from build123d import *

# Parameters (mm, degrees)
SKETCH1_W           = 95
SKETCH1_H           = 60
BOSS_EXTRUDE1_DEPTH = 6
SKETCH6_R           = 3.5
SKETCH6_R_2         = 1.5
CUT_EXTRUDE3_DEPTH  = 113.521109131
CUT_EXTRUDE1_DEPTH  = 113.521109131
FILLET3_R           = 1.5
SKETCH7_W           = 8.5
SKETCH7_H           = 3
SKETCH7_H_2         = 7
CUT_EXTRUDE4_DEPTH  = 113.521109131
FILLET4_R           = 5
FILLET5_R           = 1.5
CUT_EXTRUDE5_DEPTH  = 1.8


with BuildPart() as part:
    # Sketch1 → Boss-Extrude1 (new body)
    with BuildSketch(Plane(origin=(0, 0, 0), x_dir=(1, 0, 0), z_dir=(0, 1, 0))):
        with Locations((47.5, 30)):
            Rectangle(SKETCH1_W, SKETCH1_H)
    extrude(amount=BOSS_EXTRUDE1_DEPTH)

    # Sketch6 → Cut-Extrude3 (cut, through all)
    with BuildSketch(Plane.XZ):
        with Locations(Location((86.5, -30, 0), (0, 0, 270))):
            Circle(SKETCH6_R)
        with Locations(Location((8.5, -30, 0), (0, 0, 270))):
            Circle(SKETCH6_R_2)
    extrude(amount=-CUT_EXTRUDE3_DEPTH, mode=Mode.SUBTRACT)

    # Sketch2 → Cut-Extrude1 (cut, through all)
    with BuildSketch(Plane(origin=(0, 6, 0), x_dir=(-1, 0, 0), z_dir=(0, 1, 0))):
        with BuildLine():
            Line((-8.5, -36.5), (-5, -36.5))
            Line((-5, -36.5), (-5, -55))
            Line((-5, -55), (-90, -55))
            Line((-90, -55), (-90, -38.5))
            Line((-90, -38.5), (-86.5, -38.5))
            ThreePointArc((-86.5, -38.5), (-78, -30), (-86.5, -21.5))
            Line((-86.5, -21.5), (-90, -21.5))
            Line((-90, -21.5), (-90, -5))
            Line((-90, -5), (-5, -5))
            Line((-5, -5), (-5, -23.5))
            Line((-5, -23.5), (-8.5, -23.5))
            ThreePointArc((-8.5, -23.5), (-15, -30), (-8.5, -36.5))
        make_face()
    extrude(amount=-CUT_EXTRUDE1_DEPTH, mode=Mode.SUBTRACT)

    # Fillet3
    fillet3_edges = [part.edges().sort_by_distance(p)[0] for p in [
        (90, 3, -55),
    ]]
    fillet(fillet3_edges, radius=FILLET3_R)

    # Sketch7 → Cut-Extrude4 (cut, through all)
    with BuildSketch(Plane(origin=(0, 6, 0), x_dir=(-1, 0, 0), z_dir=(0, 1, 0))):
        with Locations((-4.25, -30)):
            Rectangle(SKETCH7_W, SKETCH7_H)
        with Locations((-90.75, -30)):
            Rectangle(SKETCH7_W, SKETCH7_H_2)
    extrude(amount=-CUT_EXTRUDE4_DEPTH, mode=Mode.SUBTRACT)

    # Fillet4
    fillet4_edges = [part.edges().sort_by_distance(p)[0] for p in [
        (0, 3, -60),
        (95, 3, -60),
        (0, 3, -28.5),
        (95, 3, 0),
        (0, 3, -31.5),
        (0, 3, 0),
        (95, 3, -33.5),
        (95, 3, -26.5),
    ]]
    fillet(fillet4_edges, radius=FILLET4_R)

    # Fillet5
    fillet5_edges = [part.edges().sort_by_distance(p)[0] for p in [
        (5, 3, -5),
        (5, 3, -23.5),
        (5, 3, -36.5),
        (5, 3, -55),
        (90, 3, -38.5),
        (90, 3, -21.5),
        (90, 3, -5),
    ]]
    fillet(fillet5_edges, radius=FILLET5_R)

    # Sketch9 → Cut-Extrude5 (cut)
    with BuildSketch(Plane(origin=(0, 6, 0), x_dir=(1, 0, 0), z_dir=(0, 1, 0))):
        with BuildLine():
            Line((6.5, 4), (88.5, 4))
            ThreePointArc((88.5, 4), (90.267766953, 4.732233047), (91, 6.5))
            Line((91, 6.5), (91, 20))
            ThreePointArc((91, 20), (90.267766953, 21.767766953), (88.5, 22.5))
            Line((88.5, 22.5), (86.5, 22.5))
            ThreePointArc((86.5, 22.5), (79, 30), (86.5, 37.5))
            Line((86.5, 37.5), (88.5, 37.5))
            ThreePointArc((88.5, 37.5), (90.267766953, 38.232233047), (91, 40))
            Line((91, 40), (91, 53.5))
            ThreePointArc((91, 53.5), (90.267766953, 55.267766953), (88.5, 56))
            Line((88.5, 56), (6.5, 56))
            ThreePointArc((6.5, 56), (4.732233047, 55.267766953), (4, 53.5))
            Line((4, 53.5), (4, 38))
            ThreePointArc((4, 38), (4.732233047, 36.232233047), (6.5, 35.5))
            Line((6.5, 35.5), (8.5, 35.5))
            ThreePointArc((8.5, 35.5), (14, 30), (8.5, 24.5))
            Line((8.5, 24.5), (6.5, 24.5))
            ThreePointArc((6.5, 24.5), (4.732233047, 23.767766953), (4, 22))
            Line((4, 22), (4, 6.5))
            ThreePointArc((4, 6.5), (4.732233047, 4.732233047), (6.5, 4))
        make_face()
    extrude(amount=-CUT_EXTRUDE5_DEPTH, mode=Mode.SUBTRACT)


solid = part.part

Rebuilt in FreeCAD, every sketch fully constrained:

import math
import FreeCAD as App
import Part
import Sketcher


def edges_at(feature, points):
    """Names of the edges that pass closest to the given points."""
    edges = feature.Shape.Edges
    near = lambda p: min(range(len(edges)), key=lambda i: edges[i].distToShape(Part.Vertex(*p))[0])
    return sorted({f"Edge{near(p) + 1}" for p in points})

doc = App.newDocument("Part")
body = doc.addObject("PartDesign::Body", "Body")

# Sketch on XZ plane
sketch1 = doc.addObject("Sketcher::SketchObject", "Sketch")
body.addObject(sketch1)
sketch1.AttachmentSupport = (doc.XZ_Plane, [""])
sketch1.MapMode = "FlatFace"
sketch1.addGeometry(Part.LineSegment(App.Vector(0, -60, 0), App.Vector(0, 0, 0)), False)
sketch1.addGeometry(Part.LineSegment(App.Vector(0, 0, 0), App.Vector(95, 0, 0)), False)
sketch1.addGeometry(Part.LineSegment(App.Vector(95, 0, 0), App.Vector(95, -60, 0)), False)
sketch1.addGeometry(Part.LineSegment(App.Vector(95, -60, 0), App.Vector(0, -60, 0)), False)
sketch1.addConstraint(Sketcher.Constraint("Coincident", 0, 2, 1, 1))
sketch1.addConstraint(Sketcher.Constraint("Coincident", 1, 2, 2, 1))
sketch1.addConstraint(Sketcher.Constraint("Coincident", 2, 2, 3, 1))
sketch1.addConstraint(Sketcher.Constraint("Coincident", 3, 2, 0, 1))
sketch1.addConstraint(Sketcher.Constraint("Vertical", 0))
sketch1.addConstraint(Sketcher.Constraint("Horizontal", 1))
sketch1.addConstraint(Sketcher.Constraint("Vertical", 2))
sketch1.addConstraint(Sketcher.Constraint("Horizontal", 3))
sketch1.addConstraint(Sketcher.Constraint("Coincident", 0, 2, -1, 1))
sketch1.addConstraint(Sketcher.Constraint("DistanceX", 1, 1, 1, 2, 95.0))
sketch1.addConstraint(Sketcher.Constraint("DistanceY", 0, 1, 0, 2, 60.0))
pad1 = doc.addObject("PartDesign::Pad", "Pad")
body.addObject(pad1)
pad1.Profile = sketch1
pad1.Length = 6
pad1.Reversed = True

# Sketch on XZ plane
sketch2 = doc.addObject("Sketcher::SketchObject", "Sketch001")
body.addObject(sketch2)
sketch2.AttachmentSupport = (doc.XZ_Plane, [""])
sketch2.MapMode = "FlatFace"
sketch2.addGeometry(Part.Circle(App.Vector(86.5, -30, 0), App.Vector(0, 0, 1), 3.5), False)
sketch2.addGeometry(Part.Circle(App.Vector(8.5, -30, 0), App.Vector(0, 0, 1), 1.5), False)
sketch2.addConstraint(Sketcher.Constraint("Horizontal", 0, 3, 1, 3))
sketch2.addConstraint(Sketcher.Constraint("Diameter", 0, 7.0))
sketch2.addConstraint(Sketcher.Constraint("Diameter", 1, 3.0))
sketch2.addConstraint(Sketcher.Constraint("DistanceY", 0, 3, -1, 1, 30.0))
sketch2.addConstraint(Sketcher.Constraint("DistanceX", 1, 3, 0, 3, 78.0))
sketch2.addConstraint(Sketcher.Constraint("DistanceX", -1, 1, 0, 3, 86.5))
pocket1 = doc.addObject("PartDesign::Pocket", "Pocket")
body.addObject(pocket1)
pocket1.Profile = sketch2
pocket1.Type = "ThroughAll"

# Sketch on XZ plane
sketch3 = doc.addObject("Sketcher::SketchObject", "Sketch002")
body.addObject(sketch3)
sketch3.AttachmentSupport = (doc.XZ_Plane, [""])
sketch3.MapMode = "FlatFace"
sketch3.AttachmentOffset = App.Placement(App.Vector(0, 0, -6), App.Rotation())
sketch3.addGeometry(Part.LineSegment(App.Vector(5, -36.5, 0), App.Vector(8.5, -36.5, 0)), False)
sketch3.addGeometry(Part.ArcOfCircle(Part.Circle(App.Vector(8.5, -30, 0), App.Vector(0, 0, 1), 6.5), math.radians(-90), math.radians(90)), False)
sketch3.addGeometry(Part.LineSegment(App.Vector(8.5, -23.5, 0), App.Vector(5, -23.5, 0)), False)
sketch3.addGeometry(Part.LineSegment(App.Vector(5, -23.5, 0), App.Vector(5, -5, 0)), False)
sketch3.addGeometry(Part.LineSegment(App.Vector(5, -5, 0), App.Vector(90, -5, 0)), False)
sketch3.addGeometry(Part.LineSegment(App.Vector(90, -5, 0), App.Vector(90, -21.5, 0)), False)
sketch3.addGeometry(Part.LineSegment(App.Vector(90, -21.5, 0), App.Vector(86.5, -21.5, 0)), False)
sketch3.addGeometry(Part.ArcOfCircle(Part.Circle(App.Vector(86.5, -30, 0), App.Vector(0, 0, 1), 8.5), math.radians(90), math.radians(270)), False)
sketch3.addGeometry(Part.LineSegment(App.Vector(86.5, -38.5, 0), App.Vector(90, -38.5, 0)), False)
sketch3.addGeometry(Part.LineSegment(App.Vector(90, -38.5, 0), App.Vector(90, -55, 0)), False)
sketch3.addGeometry(Part.LineSegment(App.Vector(90, -55, 0), App.Vector(5, -55, 0)), False)
sketch3.addGeometry(Part.LineSegment(App.Vector(5, -55, 0), App.Vector(5, -36.5, 0)), False)
sketch3.addConstraint(Sketcher.Constraint("Tangent", 0, 2, 1, 1))
sketch3.addConstraint(Sketcher.Constraint("Tangent", 1, 2, 2, 1))
sketch3.addConstraint(Sketcher.Constraint("Coincident", 2, 2, 3, 1))
sketch3.addConstraint(Sketcher.Constraint("Coincident", 3, 2, 4, 1))
sketch3.addConstraint(Sketcher.Constraint("Coincident", 4, 2, 5, 1))
sketch3.addConstraint(Sketcher.Constraint("Coincident", 5, 2, 6, 1))
sketch3.addConstraint(Sketcher.Constraint("Tangent", 6, 2, 7, 1))
sketch3.addConstraint(Sketcher.Constraint("Tangent", 7, 2, 8, 1))
sketch3.addConstraint(Sketcher.Constraint("Coincident", 8, 2, 9, 1))
sketch3.addConstraint(Sketcher.Constraint("Coincident", 9, 2, 10, 1))
sketch3.addConstraint(Sketcher.Constraint("Coincident", 10, 2, 11, 1))
sketch3.addConstraint(Sketcher.Constraint("Coincident", 11, 2, 0, 1))
sketch3.addConstraint(Sketcher.Constraint("Horizontal", 0))
sketch3.addConstraint(Sketcher.Constraint("Horizontal", 2))
sketch3.addConstraint(Sketcher.Constraint("Vertical", 3))
sketch3.addConstraint(Sketcher.Constraint("Horizontal", 4))
sketch3.addConstraint(Sketcher.Constraint("Vertical", 5))
sketch3.addConstraint(Sketcher.Constraint("Horizontal", 6))
sketch3.addConstraint(Sketcher.Constraint("Horizontal", 8))
sketch3.addConstraint(Sketcher.Constraint("Vertical", 9))
sketch3.addConstraint(Sketcher.Constraint("Horizontal", 10))
sketch3.addConstraint(Sketcher.Constraint("Vertical", 11))
sketch3.addConstraint(Sketcher.Constraint("Horizontal", 1, 3, 7, 3))
sketch3.addConstraint(Sketcher.Constraint("Vertical", 5, 2, 8, 2))
sketch3.addConstraint(Sketcher.Constraint("Vertical", 3, 2, 10, 2))
sketch3.addConstraint(Sketcher.Constraint("Equal", 2, 6))
sketch3.addConstraint(Sketcher.Constraint("Equal", 5, 9))
sketch3.addConstraint(Sketcher.Constraint("Radius", 1, 6.5))
sketch3.addConstraint(Sketcher.Constraint("Radius", 7, 8.5))
sketch3.addConstraint(Sketcher.Constraint("DistanceX", 4, 1, 4, 2, 85.0))
sketch3.addConstraint(Sketcher.Constraint("DistanceX", 0, 1, 0, 2, 3.5))
sketch3.addConstraint(Sketcher.Constraint("DistanceY", 3, 1, 3, 2, 18.5))
sketch3.addConstraint(Sketcher.Constraint("DistanceY", 1, 3, -1, 1, 30.0))
sketch3.addConstraint(Sketcher.Constraint("DistanceX", -1, 1, 2, 2, 5.0))
pocket2 = doc.addObject("PartDesign::Pocket", "Pocket001")
body.addObject(pocket2)
pocket2.Profile = sketch3
pocket2.Type = "ThroughAll"
pocket2.Reversed = True
doc.recompute()

fillet = doc.addObject("PartDesign::Fillet", "Fillet")
body.addObject(fillet)
fillet.Base = (pocket2, edges_at(pocket2, [(90, 3, -55)]))
fillet.Radius = 1.5

# Sketch on XZ plane
sketch4 = doc.addObject("Sketcher::SketchObject", "Sketch003")
body.addObject(sketch4)
sketch4.AttachmentSupport = (doc.XZ_Plane, [""])
sketch4.MapMode = "FlatFace"
sketch4.AttachmentOffset = App.Placement(App.Vector(0, 0, -6), App.Rotation())
sketch4.addGeometry(Part.LineSegment(App.Vector(8.5, -28.5, 0), App.Vector(8.5, -31.5, 0)), False)
sketch4.addGeometry(Part.LineSegment(App.Vector(8.5, -31.5, 0), App.Vector(0, -31.5, 0)), False)
sketch4.addGeometry(Part.LineSegment(App.Vector(0, -31.5, 0), App.Vector(0, -28.5, 0)), False)
sketch4.addGeometry(Part.LineSegment(App.Vector(0, -28.5, 0), App.Vector(8.5, -28.5, 0)), False)
sketch4.addGeometry(Part.LineSegment(App.Vector(95, -26.5, 0), App.Vector(95, -33.5, 0)), False)
sketch4.addGeometry(Part.LineSegment(App.Vector(95, -33.5, 0), App.Vector(86.5, -33.5, 0)), False)
sketch4.addGeometry(Part.LineSegment(App.Vector(86.5, -33.5, 0), App.Vector(86.5, -26.5, 0)), False)
sketch4.addGeometry(Part.LineSegment(App.Vector(86.5, -26.5, 0), App.Vector(95, -26.5, 0)), False)
sketch4.addConstraint(Sketcher.Constraint("Coincident", 0, 2, 1, 1))
sketch4.addConstraint(Sketcher.Constraint("Coincident", 1, 2, 2, 1))
sketch4.addConstraint(Sketcher.Constraint("Coincident", 2, 2, 3, 1))
sketch4.addConstraint(Sketcher.Constraint("Coincident", 3, 2, 0, 1))
sketch4.addConstraint(Sketcher.Constraint("Coincident", 4, 2, 5, 1))
sketch4.addConstraint(Sketcher.Constraint("Coincident", 5, 2, 6, 1))
sketch4.addConstraint(Sketcher.Constraint("Coincident", 6, 2, 7, 1))
sketch4.addConstraint(Sketcher.Constraint("Coincident", 7, 2, 4, 1))
sketch4.addConstraint(Sketcher.Constraint("Vertical", 0))
sketch4.addConstraint(Sketcher.Constraint("Horizontal", 1))
sketch4.addConstraint(Sketcher.Constraint("Vertical", 2))
sketch4.addConstraint(Sketcher.Constraint("Horizontal", 3))
sketch4.addConstraint(Sketcher.Constraint("Vertical", 4))
sketch4.addConstraint(Sketcher.Constraint("Horizontal", 5))
sketch4.addConstraint(Sketcher.Constraint("Vertical", 6))
sketch4.addConstraint(Sketcher.Constraint("Horizontal", 7))
sketch4.addConstraint(Sketcher.Constraint("PointOnObject", 1, 2, -2))
sketch4.addConstraint(Sketcher.Constraint("Equal", 3, 5))
sketch4.addConstraint(Sketcher.Constraint("DistanceY", 0, 2, 0, 1, 3.0))
sketch4.addConstraint(Sketcher.Constraint("DistanceY", 4, 2, 4, 1, 7.0))
sketch4.addConstraint(Sketcher.Constraint("DistanceX", 1, 2, 1, 1, 8.5))
sketch4.addConstraint(Sketcher.Constraint("DistanceX", -1, 1, 4, 2, 95.0))
sketch4.addConstraint(Sketcher.Constraint("DistanceY", 4, 2, 0, 2, 2.0))
sketch4.addConstraint(Sketcher.Constraint("DistanceY", 0, 2, -1, 1, 31.5))
pocket3 = doc.addObject("PartDesign::Pocket", "Pocket002")
body.addObject(pocket3)
pocket3.Profile = sketch4
pocket3.Type = "ThroughAll"
pocket3.Reversed = True
doc.recompute()

fillet2 = doc.addObject("PartDesign::Fillet", "Fillet001")
body.addObject(fillet2)
fillet2.Base = (pocket3, edges_at(pocket3, [
    (0, 3, -60),
    (95, 3, -60),
    (0, 3, -28.5),
    (95, 3, 0),
    (0, 3, -31.5),
    (0, 3, 0),
    (95, 3, -33.5),
    (95, 3, -26.5),
]))
fillet2.Radius = 5
doc.recompute()

fillet3 = doc.addObject("PartDesign::Fillet", "Fillet002")
body.addObject(fillet3)
fillet3.Base = (fillet2, edges_at(fillet2, [
    (5, 3, -5),
    (5, 3, -23.5),
    (5, 3, -36.5),
    (5, 3, -55),
    (90, 3, -38.5),
    (90, 3, -21.5),
    (90, 3, -5),
]))
fillet3.Radius = 1.5

# Sketch on XZ plane
sketch5 = doc.addObject("Sketcher::SketchObject", "Sketch004")
body.addObject(sketch5)
sketch5.AttachmentSupport = (doc.XZ_Plane, [""])
sketch5.MapMode = "FlatFace"
sketch5.AttachmentOffset = App.Placement(App.Vector(0, 0, -6), App.Rotation())
sketch5.addGeometry(Part.LineSegment(App.Vector(6.5, -4, 0), App.Vector(88.5, -4, 0)), False)
sketch5.addGeometry(Part.ArcOfCircle(Part.Circle(App.Vector(88.5, -6.5, 0), App.Vector(0, 0, 1), 2.5), math.radians(0), math.radians(90)), False)
sketch5.addGeometry(Part.LineSegment(App.Vector(91, -6.5, 0), App.Vector(91, -20, 0)), False)
sketch5.addGeometry(Part.ArcOfCircle(Part.Circle(App.Vector(88.5, -20, 0), App.Vector(0, 0, 1), 2.5), math.radians(-90), math.radians(0)), False)
sketch5.addGeometry(Part.LineSegment(App.Vector(88.5, -22.5, 0), App.Vector(86.5, -22.5, 0)), False)
sketch5.addGeometry(Part.ArcOfCircle(Part.Circle(App.Vector(86.5, -30, 0), App.Vector(0, 0, 1), 7.5), math.radians(90), math.radians(270)), False)
sketch5.addGeometry(Part.LineSegment(App.Vector(86.5, -37.5, 0), App.Vector(88.5, -37.5, 0)), False)
sketch5.addGeometry(Part.ArcOfCircle(Part.Circle(App.Vector(88.5, -40, 0), App.Vector(0, 0, 1), 2.5), math.radians(0), math.radians(90)), False)
sketch5.addGeometry(Part.LineSegment(App.Vector(91, -40, 0), App.Vector(91, -53.5, 0)), False)
sketch5.addGeometry(Part.ArcOfCircle(Part.Circle(App.Vector(88.5, -53.5, 0), App.Vector(0, 0, 1), 2.5), math.radians(-90), math.radians(0)), False)
sketch5.addGeometry(Part.LineSegment(App.Vector(88.5, -56, 0), App.Vector(6.5, -56, 0)), False)
sketch5.addGeometry(Part.ArcOfCircle(Part.Circle(App.Vector(6.5, -53.5, 0), App.Vector(0, 0, 1), 2.5), math.radians(180), math.radians(270)), False)
sketch5.addGeometry(Part.LineSegment(App.Vector(4, -53.5, 0), App.Vector(4, -38, 0)), False)
sketch5.addGeometry(Part.ArcOfCircle(Part.Circle(App.Vector(6.5, -38, 0), App.Vector(0, 0, 1), 2.5), math.radians(90), math.radians(180)), False)
sketch5.addGeometry(Part.LineSegment(App.Vector(6.5, -35.5, 0), App.Vector(8.5, -35.5, 0)), False)
sketch5.addGeometry(Part.ArcOfCircle(Part.Circle(App.Vector(8.5, -30, 0), App.Vector(0, 0, 1), 5.5), math.radians(-90), math.radians(90)), False)
sketch5.addGeometry(Part.LineSegment(App.Vector(8.5, -24.5, 0), App.Vector(6.5, -24.5, 0)), False)
sketch5.addGeometry(Part.ArcOfCircle(Part.Circle(App.Vector(6.5, -22, 0), App.Vector(0, 0, 1), 2.5), math.radians(180), math.radians(270)), False)
sketch5.addGeometry(Part.LineSegment(App.Vector(4, -22, 0), App.Vector(4, -6.5, 0)), False)
sketch5.addGeometry(Part.ArcOfCircle(Part.Circle(App.Vector(6.5, -6.5, 0), App.Vector(0, 0, 1), 2.5), math.radians(90), math.radians(180)), False)
sketch5.addConstraint(Sketcher.Constraint("Tangent", 0, 2, 1, 2))
sketch5.addConstraint(Sketcher.Constraint("Tangent", 1, 1, 2, 1))
sketch5.addConstraint(Sketcher.Constraint("Tangent", 2, 2, 3, 2))
sketch5.addConstraint(Sketcher.Constraint("Tangent", 3, 1, 4, 1))
sketch5.addConstraint(Sketcher.Constraint("Tangent", 4, 2, 5, 1))
sketch5.addConstraint(Sketcher.Constraint("Tangent", 5, 2, 6, 1))
sketch5.addConstraint(Sketcher.Constraint("Tangent", 6, 2, 7, 2))
sketch5.addConstraint(Sketcher.Constraint("Tangent", 7, 1, 8, 1))
sketch5.addConstraint(Sketcher.Constraint("Tangent", 8, 2, 9, 2))
sketch5.addConstraint(Sketcher.Constraint("Tangent", 9, 1, 10, 1))
sketch5.addConstraint(Sketcher.Constraint("Tangent", 10, 2, 11, 2))
sketch5.addConstraint(Sketcher.Constraint("Tangent", 11, 1, 12, 1))
sketch5.addConstraint(Sketcher.Constraint("Tangent", 12, 2, 13, 2))
sketch5.addConstraint(Sketcher.Constraint("Tangent", 13, 1, 14, 1))
sketch5.addConstraint(Sketcher.Constraint("Tangent", 14, 2, 15, 1))
sketch5.addConstraint(Sketcher.Constraint("Tangent", 15, 2, 16, 1))
sketch5.addConstraint(Sketcher.Constraint("Tangent", 16, 2, 17, 2))
sketch5.addConstraint(Sketcher.Constraint("Tangent", 17, 1, 18, 1))
sketch5.addConstraint(Sketcher.Constraint("Tangent", 18, 2, 19, 2))
sketch5.addConstraint(Sketcher.Constraint("Tangent", 19, 1, 0, 1))
sketch5.addConstraint(Sketcher.Constraint("Horizontal", 0))
sketch5.addConstraint(Sketcher.Constraint("Vertical", 2))
sketch5.addConstraint(Sketcher.Constraint("Horizontal", 4))
sketch5.addConstraint(Sketcher.Constraint("Horizontal", 6))
sketch5.addConstraint(Sketcher.Constraint("Vertical", 8))
sketch5.addConstraint(Sketcher.Constraint("Horizontal", 10))
sketch5.addConstraint(Sketcher.Constraint("Vertical", 12))
sketch5.addConstraint(Sketcher.Constraint("Horizontal", 14))
sketch5.addConstraint(Sketcher.Constraint("Horizontal", 16))
sketch5.addConstraint(Sketcher.Constraint("Vertical", 18))
sketch5.addConstraint(Sketcher.Constraint("Equal", 1, 3))
sketch5.addConstraint(Sketcher.Constraint("Equal", 3, 7))
sketch5.addConstraint(Sketcher.Constraint("Equal", 7, 9))
sketch5.addConstraint(Sketcher.Constraint("Equal", 9, 11))
sketch5.addConstraint(Sketcher.Constraint("Equal", 11, 13))
sketch5.addConstraint(Sketcher.Constraint("Equal", 13, 17))
sketch5.addConstraint(Sketcher.Constraint("Equal", 17, 19))
sketch5.addConstraint(Sketcher.Constraint("Horizontal", 5, 3, 15, 3))
sketch5.addConstraint(Sketcher.Constraint("Vertical", 3, 3, 7, 3))
sketch5.addConstraint(Sketcher.Constraint("Vertical", 13, 3, 17, 3))
sketch5.addConstraint(Sketcher.Constraint("Equal", 6, 14))
sketch5.addConstraint(Sketcher.Constraint("Equal", 2, 8))
sketch5.addConstraint(Sketcher.Constraint("Radius", 1, 2.5))
sketch5.addConstraint(Sketcher.Constraint("Radius", 5, 7.5))
sketch5.addConstraint(Sketcher.Constraint("Radius", 15, 5.5))
sketch5.addConstraint(Sketcher.Constraint("DistanceX", 0, 1, 0, 2, 82.0))
sketch5.addConstraint(Sketcher.Constraint("DistanceX", 4, 2, 4, 1, 2.0))
sketch5.addConstraint(Sketcher.Constraint("DistanceY", 2, 2, 2, 1, 13.5))
sketch5.addConstraint(Sketcher.Constraint("DistanceY", 3, 3, -1, 1, 20.0))
sketch5.addConstraint(Sketcher.Constraint("DistanceX", -1, 1, 1, 1, 91.0))
pocket4 = doc.addObject("PartDesign::Pocket", "Pocket003")
body.addObject(pocket4)
pocket4.Profile = sketch5
pocket4.Length = 1.8
pocket4.Reversed = True

doc.recompute()
